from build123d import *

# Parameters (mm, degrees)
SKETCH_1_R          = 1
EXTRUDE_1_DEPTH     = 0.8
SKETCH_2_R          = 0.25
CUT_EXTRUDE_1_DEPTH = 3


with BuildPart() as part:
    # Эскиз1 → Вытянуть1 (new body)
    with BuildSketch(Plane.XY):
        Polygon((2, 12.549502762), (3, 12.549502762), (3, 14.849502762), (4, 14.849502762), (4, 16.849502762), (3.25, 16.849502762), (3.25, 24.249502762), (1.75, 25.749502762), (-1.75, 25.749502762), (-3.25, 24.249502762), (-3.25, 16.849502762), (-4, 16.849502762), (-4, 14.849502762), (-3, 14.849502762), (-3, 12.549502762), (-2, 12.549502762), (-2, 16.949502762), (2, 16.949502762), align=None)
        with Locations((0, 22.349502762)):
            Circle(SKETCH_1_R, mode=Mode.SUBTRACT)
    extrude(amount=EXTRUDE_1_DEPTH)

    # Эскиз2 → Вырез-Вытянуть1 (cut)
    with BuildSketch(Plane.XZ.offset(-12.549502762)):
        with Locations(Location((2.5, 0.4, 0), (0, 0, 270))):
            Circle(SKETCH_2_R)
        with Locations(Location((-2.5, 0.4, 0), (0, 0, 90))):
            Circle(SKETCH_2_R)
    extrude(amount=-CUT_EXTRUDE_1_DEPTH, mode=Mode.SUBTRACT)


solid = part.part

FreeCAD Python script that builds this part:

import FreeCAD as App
import Part
import Sketcher

V = App.Vector
Q = App.Units.Quantity

doc = App.newDocument("Part")
body = doc.addObject("PartDesign::Body", "Body")

# Sketch on XY plane
sketch1 = body.newObject("Sketcher::SketchObject", "Sketch")
sketch1.AttachmentSupport = (doc.getObject("XY_Plane"), [""])
sketch1.MapMode = "FlatFace"
sketch1.addGeometry(Part.LineSegment(V(2, 12.5, 0), V(3, 12.5, 0)), False)
sketch1.addGeometry(Part.LineSegment(V(3, 12.5, 0), V(3, 14.8, 0)), False)
sketch1.addGeometry(Part.LineSegment(V(3, 14.8, 0), V(4, 14.8, 0)), False)
sketch1.addGeometry(Part.LineSegment(V(4, 14.8, 0), V(4, 16.8, 0)), False)
sketch1.addGeometry(Part.LineSegment(V(4, 16.8, 0), V(3.2, 16.8, 0)), False)
sketch1.addGeometry(Part.LineSegment(V(3.2, 16.8, 0), V(3.2, 24.2, 0)), False)
sketch1.addGeometry(Part.LineSegment(V(3.2, 24.2, 0), V(1.8, 25.7, 0)), False)
sketch1.addGeometry(Part.LineSegment(V(1.8, 25.7, 0), V(-1.8, 25.7, 0)), False)
sketch1.addGeometry(Part.LineSegment(V(-1.8, 25.7, 0), V(-3.2, 24.2, 0)), False)
sketch1.addGeometry(Part.LineSegment(V(-3.2, 24.2, 0), V(-3.2, 16.8, 0)), False)
sketch1.addGeometry(Part.LineSegment(V(-3.2, 16.8, 0), V(-4, 16.8, 0)), False)
sketch1.addGeometry(Part.LineSegment(V(-4, 16.8, 0), V(-4, 14.8, 0)), False)
sketch1.addGeometry(Part.LineSegment(V(-4, 14.8, 0), V(-3, 14.8, 0)), False)
sketch1.addGeometry(Part.LineSegment(V(-3, 14.8, 0), V(-3, 12.5, 0)), False)
sketch1.addGeometry(Part.LineSegment(V(-3, 12.5, 0), V(-2, 12.5, 0)), False)
sketch1.addGeometry(Part.LineSegment(V(-2, 12.5, 0), V(-2, 16.9, 0)), False)
sketch1.addGeometry(Part.LineSegment(V(-2, 16.9, 0), V(2, 16.9, 0)), False)
sketch1.addGeometry(Part.LineSegment(V(2, 16.9, 0), V(2, 12.5, 0)), False)
sketch1.addGeometry(Part.Circle(V(0, 22.3, 0), V(0, 0, 1), 1), False)
sketch1.addConstraint(Sketcher.Constraint("Coincident", 0, 2, 1, 1))
sketch1.addConstraint(Sketcher.Constraint("Coincident", 1, 2, 2, 1))
sketch1.addConstraint(Sketcher.Constraint("Coincident", 2, 2, 3, 1))
sketch1.addConstraint(Sketcher.Constraint("Coincident", 3, 2, 4, 1))
sketch1.addConstraint(Sketcher.Constraint("Coincident", 4, 2, 5, 1))
sketch1.addConstraint(Sketcher.Constraint("Coincident", 5, 2, 6, 1))
sketch1.addConstraint(Sketcher.Constraint("Coincident", 6, 2, 7, 1))
sketch1.addConstraint(Sketcher.Constraint("Coincident", 7, 2, 8, 1))
sketch1.addConstraint(Sketcher.Constraint("Coincident", 8, 2, 9, 1))
sketch1.addConstraint(Sketcher.Constraint("Coincident", 9, 2, 10, 1))
sketch1.addConstraint(Sketcher.Constraint("Coincident", 10, 2, 11, 1))
sketch1.addConstraint(Sketcher.Constraint("Coincident", 11, 2, 12, 1))
sketch1.addConstraint(Sketcher.Constraint("Coincident", 12, 2, 13, 1))
sketch1.addConstraint(Sketcher.Constraint("Coincident", 13, 2, 14, 1))
sketch1.addConstraint(Sketcher.Constraint("Coincident", 14, 2, 15, 1))
sketch1.addConstraint(Sketcher.Constraint("Coincident", 15, 2, 16, 1))
sketch1.addConstraint(Sketcher.Constraint("Coincident", 16, 2, 17, 1))
sketch1.addConstraint(Sketcher.Constraint("Coincident", 17, 2, 0, 1))
sketch1.addConstraint(Sketcher.Constraint("Horizontal", 0))
sketch1.addConstraint(Sketcher.Constraint("Vertical", 1))
sketch1.addConstraint(Sketcher.Constraint("Horizontal", 2))
sketch1.addConstraint(Sketcher.Constraint("Vertical", 3))
sketch1.addConstraint(Sketcher.Constraint("Horizontal", 4))
sketch1.addConstraint(Sketcher.Constraint("Vertical", 5))
sketch1.addConstraint(Sketcher.Constraint("Horizontal", 7))
sketch1.addConstraint(Sketcher.Constraint("Vertical", 9))
sketch1.addConstraint(Sketcher.Constraint("Horizontal", 10))
sketch1.addConstraint(Sketcher.Constraint("Vertical", 11))
sketch1.addConstraint(Sketcher.Constraint("Horizontal", 12))
sketch1.addConstraint(Sketcher.Constraint("Vertical", 13))
sketch1.addConstraint(Sketcher.Constraint("Horizontal", 14))
sketch1.addConstraint(Sketcher.Constraint("Vertical", 15))
sketch1.addConstraint(Sketcher.Constraint("Horizontal", 16))
sketch1.addConstraint(Sketcher.Constraint("Vertical", 17))
sketch1.addConstraint(Sketcher.Constraint("Symmetric", 5, 2, 8, 2, -2))
sketch1.addConstraint(Sketcher.Constraint("Symmetric", 3, 2, 10, 2, -2))
sketch1.addConstraint(Sketcher.Constraint("Symmetric", 1, 2, 12, 2, -2))
sketch1.addConstraint(Sketcher.Constraint("Symmetric", 14, 2, 17, 2, -2))
sketch1.addConstraint(Sketcher.Constraint("PointOnObject", 18, 3, -2))
sketch1.addConstraint(Sketcher.Constraint("Perpendicular", 6, 8))
sketch1.addConstraint(Sketcher.Constraint("Equal", 0, 2))
sketch1.addConstraint(Sketcher.Constraint("Equal", 6, 8))
sketch1.addConstraint(Sketcher.Constraint("Diameter", 18, Q("2 mm")))
sketch1.addConstraint(Sketcher.Constraint("DistanceX", 0, 1, 0, 2, Q("1 mm")))
sketch1.addConstraint(Sketcher.Constraint("DistanceX", 16, 1, 16, 2, Q("4 mm")))
sketch1.addConstraint(Sketcher.Constraint("DistanceY", 3, 1, 3, 2, Q("2 mm")))
sketch1.addConstraint(Sketcher.Constraint("DistanceX", 7, 2, 7, 1, Q("3.5 mm")))
sketch1.addConstraint(Sketcher.Constraint("DistanceY", 1, 1, 1, 2, Q("2.3 mm")))
sketch1.addConstraint(Sketcher.Constraint("DistanceY", 5, 1, 5, 2, Q("7.4 mm")))
sketch1.addConstraint(Sketcher.Constraint("DistanceY", 15, 1, 15, 2, Q("4.4 mm")))
sketch1.addConstraint(Sketcher.Constraint("DistanceX", 7, 2, 5, 2, Q("5 mm")))
sketch1.addConstraint(Sketcher.Constraint("DistanceY", 0, 2, 18, 3, Q("9.8 mm")))
sketch1.addConstraint(Sketcher.Constraint("DistanceY", -1, 1, 18, 3, Q("22.349503 mm")))
pad1 = body.newObject("PartDesign::Pad", "Pad")
pad1.Profile = sketch1
pad1.Length = 0.8

# Sketch on XZ plane
sketch2 = body.newObject("Sketcher::SketchObject", "Sketch001")
sketch2.AttachmentSupport = (doc.getObject("XZ_Plane"), [""])
sketch2.MapMode = "FlatFace"
sketch2.AttachmentOffset = App.Placement(V(0, 0, -12.549503), App.Rotation())
sketch2.addGeometry(Part.Circle(V(2.5, 0.4, 0), V(0, 0, 1), 0.25), False)
sketch2.addGeometry(Part.Circle(V(-2.5, 0.4, 0), V(0, 0, 1), 0.25), False)
sketch2.addConstraint(Sketcher.Constraint("Equal", 0, 1))
sketch2.addConstraint(Sketcher.Constraint("Symmetric", 0, 3, 1, 3, -2))
sketch2.addConstraint(Sketcher.Constraint("Diameter", 0, Q("0.5 mm")))
sketch2.addConstraint(Sketcher.Constraint("DistanceX", 1, 3, 0, 3, Q("5 mm")))
sketch2.addConstraint(Sketcher.Constraint("DistanceY", -1, 1, 0, 3, Q("0.4 mm")))
pocket1 = body.newObject("PartDesign::Pocket", "Pocket")
pocket1.Profile = sketch2
pocket1.Length = 3

doc.recompute()
